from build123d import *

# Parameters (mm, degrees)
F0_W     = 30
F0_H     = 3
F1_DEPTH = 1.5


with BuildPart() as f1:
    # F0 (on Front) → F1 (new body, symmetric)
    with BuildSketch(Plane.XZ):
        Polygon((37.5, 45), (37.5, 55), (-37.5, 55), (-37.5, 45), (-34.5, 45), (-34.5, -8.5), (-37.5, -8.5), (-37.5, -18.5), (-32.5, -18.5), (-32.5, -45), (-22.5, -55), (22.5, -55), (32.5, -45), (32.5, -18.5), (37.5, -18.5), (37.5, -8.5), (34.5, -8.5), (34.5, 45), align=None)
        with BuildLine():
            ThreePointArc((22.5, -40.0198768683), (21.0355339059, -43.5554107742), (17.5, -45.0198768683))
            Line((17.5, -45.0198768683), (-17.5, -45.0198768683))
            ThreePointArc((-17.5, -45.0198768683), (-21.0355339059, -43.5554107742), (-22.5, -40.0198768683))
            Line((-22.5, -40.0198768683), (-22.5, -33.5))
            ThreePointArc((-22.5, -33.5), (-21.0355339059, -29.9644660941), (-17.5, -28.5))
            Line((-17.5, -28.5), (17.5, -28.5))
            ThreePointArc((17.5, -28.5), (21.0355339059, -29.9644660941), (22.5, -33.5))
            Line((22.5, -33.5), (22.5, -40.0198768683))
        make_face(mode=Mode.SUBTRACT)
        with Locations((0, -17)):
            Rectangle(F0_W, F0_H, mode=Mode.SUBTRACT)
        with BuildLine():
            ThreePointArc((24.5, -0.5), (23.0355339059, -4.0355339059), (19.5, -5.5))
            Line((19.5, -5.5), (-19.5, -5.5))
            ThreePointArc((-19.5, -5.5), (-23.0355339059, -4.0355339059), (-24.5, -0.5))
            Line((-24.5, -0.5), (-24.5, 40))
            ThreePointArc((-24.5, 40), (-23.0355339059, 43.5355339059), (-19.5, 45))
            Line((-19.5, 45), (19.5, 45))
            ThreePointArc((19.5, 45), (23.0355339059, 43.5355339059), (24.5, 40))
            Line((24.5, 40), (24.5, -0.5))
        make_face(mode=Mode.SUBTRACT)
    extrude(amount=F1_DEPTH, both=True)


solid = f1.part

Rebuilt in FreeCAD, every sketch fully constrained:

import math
import FreeCAD as App
import Part
import Sketcher

doc = App.newDocument("Part")
body = doc.addObject("PartDesign::Body", "Body")

# Sketch on XZ plane
sketch1 = body.newObject("Sketcher::SketchObject", "Sketch")
sketch1.AttachmentSupport = (doc.getObject("XZ_Plane"), [""])
sketch1.MapMode = "FlatFace"
sketch1.addGeometry([
    Part.LineSegment(App.Vector(37.5, 45, 0), App.Vector(37.5, 55, 0)),  # 0
    Part.LineSegment(App.Vector(37.5, 55, 0), App.Vector(-37.5, 55, 0)),  # 1
    Part.LineSegment(App.Vector(-37.5, 55, 0), App.Vector(-37.5, 45, 0)),  # 2
    Part.LineSegment(App.Vector(-37.5, 45, 0), App.Vector(-34.5, 45, 0)),  # 3
    Part.LineSegment(App.Vector(-34.5, 45, 0), App.Vector(-34.5, -8.5, 0)),  # 4
    Part.LineSegment(App.Vector(-34.5, -8.5, 0), App.Vector(-37.5, -8.5, 0)),  # 5
    Part.LineSegment(App.Vector(-37.5, -8.5, 0), App.Vector(-37.5, -18.5, 0)),  # 6
    Part.LineSegment(App.Vector(-37.5, -18.5, 0), App.Vector(-32.5, -18.5, 0)),  # 7
    Part.LineSegment(App.Vector(-32.5, -18.5, 0), App.Vector(-32.5, -45, 0)),  # 8
    Part.LineSegment(App.Vector(-32.5, -45, 0), App.Vector(-22.5, -55, 0)),  # 9
    Part.LineSegment(App.Vector(-22.5, -55, 0), App.Vector(22.5, -55, 0)),  # 10
    Part.LineSegment(App.Vector(22.5, -55, 0), App.Vector(32.5, -45, 0)),  # 11
    Part.LineSegment(App.Vector(32.5, -45, 0), App.Vector(32.5, -18.5, 0)),  # 12
    Part.LineSegment(App.Vector(32.5, -18.5, 0), App.Vector(37.5, -18.5, 0)),  # 13
    Part.LineSegment(App.Vector(37.5, -18.5, 0), App.Vector(37.5, -8.5, 0)),  # 14
    Part.LineSegment(App.Vector(37.5, -8.5, 0), App.Vector(34.5, -8.5, 0)),  # 15
    Part.LineSegment(App.Vector(34.5, -8.5, 0), App.Vector(34.5, 45, 0)),  # 16
    Part.LineSegment(App.Vector(34.5, 45, 0), App.Vector(37.5, 45, 0)),  # 17
    Part.LineSegment(App.Vector(22.5, -33.5, 0), App.Vector(22.5, -40, 0)),  # 18
    Part.ArcOfCircle(Part.Circle(App.Vector(17.5, -40, 0), App.Vector(0, 0, 1), 5), math.radians(-90), math.radians(0)),  # 19
    Part.LineSegment(App.Vector(17.5, -45, 0), App.Vector(-17.5, -45, 0)),  # 20
    Part.ArcOfCircle(Part.Circle(App.Vector(-17.5, -40, 0), App.Vector(0, 0, 1), 5), math.radians(180), math.radians(270)),  # 21
    Part.LineSegment(App.Vector(-22.5, -40, 0), App.Vector(-22.5, -33.5, 0)),  # 22
    Part.ArcOfCircle(Part.Circle(App.Vector(-17.5, -33.5, 0), App.Vector(0, 0, 1), 5), math.radians(90), math.radians(180)),  # 23
    Part.LineSegment(App.Vector(-17.5, -28.5, 0), App.Vector(17.5, -28.5, 0)),  # 24
    Part.ArcOfCircle(Part.Circle(App.Vector(17.5, -33.5, 0), App.Vector(0, 0, 1), 5), math.radians(0), math.radians(90)),  # 25
    Part.LineSegment(App.Vector(15, -18.5, 0), App.Vector(-15, -18.5, 0)),  # 26
    Part.LineSegment(App.Vector(-15, -18.5, 0), App.Vector(-15, -15.5, 0)),  # 27
    Part.LineSegment(App.Vector(-15, -15.5, 0), App.Vector(15, -15.5, 0)),  # 28
    Part.LineSegment(App.Vector(15, -15.5, 0), App.Vector(15, -18.5, 0)),  # 29
    Part.LineSegment(App.Vector(24.5, 40, 0), App.Vector(24.5, -0.5, 0)),  # 30
    Part.ArcOfCircle(Part.Circle(App.Vector(19.5, -0.5, 0), App.Vector(0, 0, 1), 5), math.radians(-90), math.radians(0)),  # 31
    Part.LineSegment(App.Vector(19.5, -5.5, 0), App.Vector(-19.5, -5.5, 0)),  # 32
    Part.ArcOfCircle(Part.Circle(App.Vector(-19.5, -0.5, 0), App.Vector(0, 0, 1), 5), math.radians(180), math.radians(270)),  # 33
    Part.LineSegment(App.Vector(-24.5, -0.5, 0), App.Vector(-24.5, 40, 0)),  # 34
    Part.ArcOfCircle(Part.Circle(App.Vector(-19.5, 40, 0), App.Vector(0, 0, 1), 5), math.radians(90), math.radians(180)),  # 35
    Part.LineSegment(App.Vector(-19.5, 45, 0), App.Vector(19.5, 45, 0)),  # 36
    Part.ArcOfCircle(Part.Circle(App.Vector(19.5, 40, 0), App.Vector(0, 0, 1), 5), math.radians(0), math.radians(90)),  # 37
], False)
sketch1.addConstraint([
    Sketcher.Constraint("Coincident", 0, 2, 1, 1),
    Sketcher.Constraint("Coincident", 1, 2, 2, 1),
    Sketcher.Constraint("Coincident", 2, 2, 3, 1),
    Sketcher.Constraint("Coincident", 3, 2, 4, 1),
    Sketcher.Constraint("Coincident", 4, 2, 5, 1),
    Sketcher.Constraint("Coincident", 5, 2, 6, 1),
    Sketcher.Constraint("Coincident", 6, 2, 7, 1),
    Sketcher.Constraint("Coincident", 7, 2, 8, 1),
    Sketcher.Constraint("Coincident", 8, 2, 9, 1),
    Sketcher.Constraint("Coincident", 9, 2, 10, 1),
    Sketcher.Constraint("Coincident", 10, 2, 11, 1),
    Sketcher.Constraint("Coincident", 11, 2, 12, 1),
    Sketcher.Constraint("Coincident", 12, 2, 13, 1),
    Sketcher.Constraint("Coincident", 13, 2, 14, 1),
    Sketcher.Constraint("Coincident", 14, 2, 15, 1),
    Sketcher.Constraint("Coincident", 15, 2, 16, 1),
    Sketcher.Constraint("Coincident", 16, 2, 17, 1),
    Sketcher.Constraint("Coincident", 17, 2, 0, 1),
    Sketcher.Constraint("Tangent", 18, 2, 19, 2),
    Sketcher.Constraint("Tangent", 19, 1, 20, 1),
    Sketcher.Constraint("Tangent", 20, 2, 21, 2),
    Sketcher.Constraint("Tangent", 21, 1, 22, 1),
    Sketcher.Constraint("Tangent", 22, 2, 23, 2),
    Sketcher.Constraint("Tangent", 23, 1, 24, 1),
    Sketcher.Constraint("Tangent", 24, 2, 25, 2),
    Sketcher.Constraint("Tangent", 25, 1, 18, 1),
    Sketcher.Constraint("Coincident", 26, 2, 27, 1),
    Sketcher.Constraint("Coincident", 27, 2, 28, 1),
    Sketcher.Constraint("Coincident", 28, 2, 29, 1),
    Sketcher.Constraint("Coincident", 29, 2, 26, 1),
    Sketcher.Constraint("Tangent", 30, 2, 31, 2),
    Sketcher.Constraint("Tangent", 31, 1, 32, 1),
    Sketcher.Constraint("Tangent", 32, 2, 33, 2),
    Sketcher.Constraint("Tangent", 33, 1, 34, 1),
    Sketcher.Constraint("Tangent", 34, 2, 35, 2),
    Sketcher.Constraint("Tangent", 35, 1, 36, 1),
    Sketcher.Constraint("Tangent", 36, 2, 37, 2),
    Sketcher.Constraint("Tangent", 37, 1, 30, 1),
    Sketcher.Constraint("Vertical", 0),
    Sketcher.Constraint("Horizontal", 1),
    Sketcher.Constraint("Vertical", 2),
    Sketcher.Constraint("Horizontal", 3),
    Sketcher.Constraint("Vertical", 4),
    Sketcher.Constraint("Horizontal", 5),
    Sketcher.Constraint("Vertical", 6),
    Sketcher.Constraint("Horizontal", 7),
    Sketcher.Constraint("Vertical", 8),
    Sketcher.Constraint("Horizontal", 10),
    Sketcher.Constraint("Vertical", 12),
    Sketcher.Constraint("Horizontal", 13),
    Sketcher.Constraint("Vertical", 14),
    Sketcher.Constraint("Horizontal", 15),
    Sketcher.Constraint("Vertical", 16),
    Sketcher.Constraint("Horizontal", 17),
    Sketcher.Constraint("Vertical", 18),
    Sketcher.Constraint("Horizontal", 20),
    Sketcher.Constraint("Vertical", 22),
    Sketcher.Constraint("Horizontal", 24),
    Sketcher.Constraint("Horizontal", 26),
    Sketcher.Constraint("Vertical", 27),
    Sketcher.Constraint("Horizontal", 28),
    Sketcher.Constraint("Vertical", 29),
    Sketcher.Constraint("Vertical", 30),
    Sketcher.Constraint("Horizontal", 32),
    Sketcher.Constraint("Vertical", 34),
    Sketcher.Constraint("Horizontal", 36),
    Sketcher.Constraint("Equal", 19, 21),
    Sketcher.Constraint("Equal", 21, 23),
    Sketcher.Constraint("Equal", 23, 25),
    Sketcher.Constraint("Equal", 25, 31),
    Sketcher.Constraint("Equal", 31, 33),
    Sketcher.Constraint("Equal", 33, 35),
    Sketcher.Constraint("Equal", 35, 37),
    Sketcher.Constraint("Symmetric", 8, 2, 11, 2, -2),
    Sketcher.Constraint("Symmetric", 6, 2, 13, 2, -2),
    Sketcher.Constraint("Symmetric", 4, 2, 15, 2, -2),
    Sketcher.Constraint("Symmetric", 2, 2, 17, 2, -2),
    Sketcher.Constraint("Perpendicular", 9, 11),
    Sketcher.Constraint("Horizontal", 13, 2, 26, 2),
    Sketcher.Constraint("Horizontal", 17, 2, 35, 1),
    Sketcher.Constraint("Vertical", 2, 2, 5, 2),
    Sketcher.Constraint("Vertical", 10, 2, 18, 2),
    Sketcher.Constraint("Vertical", 9, 2, 21, 1),
    Sketcher.Constraint("Equal", 2, 6),
    Sketcher.Constraint("Equal", 17, 27),
    Sketcher.Constraint("Equal", 9, 11),
    Sketcher.Constraint("Radius", 19, 5.0),
    Sketcher.Constraint("DistanceX", 1, 2, 1, 1, 75.0),
    Sketcher.Constraint("DistanceX", 3, 1, 3, 2, 3.0),
    Sketcher.Constraint("DistanceX", 7, 1, 7, 2, 5.0),
    Sketcher.Constraint("DistanceX", 10, 1, 10, 2, 45.0),
    Sketcher.Constraint("DistanceX", 26, 2, 26, 1, 30.0),
    Sketcher.Constraint("DistanceX", 32, 2, 32, 1, 39.0),
    Sketcher.Constraint("DistanceY", 0, 1, 0, 2, 10.0),
    Sketcher.Constraint("DistanceY", 4, 2, 4, 1, 53.5),
    Sketcher.Constraint("DistanceY", 8, 2, 8, 1, 26.5),
    Sketcher.Constraint("DistanceY", 30, 2, 30, 1, 40.5),
    Sketcher.Constraint("DistanceY", -1, 1, 35, 3, 40.0),
    Sketcher.Constraint("DistanceX", 26, 2, -1, 1, 15.0),
    Sketcher.Constraint("DistanceX", 25, 3, 31, 3, 2.0),
    Sketcher.Constraint("DistanceY", 25, 3, 31, 3, 33.0),
    Sketcher.Constraint("DistanceY", 18, 2, 18, 1, 6.519877),
])
pad1 = body.newObject("PartDesign::Pad", "Pad")
pad1.Profile = sketch1
pad1.Length = 3
pad1.Midplane = True

doc.recompute()
